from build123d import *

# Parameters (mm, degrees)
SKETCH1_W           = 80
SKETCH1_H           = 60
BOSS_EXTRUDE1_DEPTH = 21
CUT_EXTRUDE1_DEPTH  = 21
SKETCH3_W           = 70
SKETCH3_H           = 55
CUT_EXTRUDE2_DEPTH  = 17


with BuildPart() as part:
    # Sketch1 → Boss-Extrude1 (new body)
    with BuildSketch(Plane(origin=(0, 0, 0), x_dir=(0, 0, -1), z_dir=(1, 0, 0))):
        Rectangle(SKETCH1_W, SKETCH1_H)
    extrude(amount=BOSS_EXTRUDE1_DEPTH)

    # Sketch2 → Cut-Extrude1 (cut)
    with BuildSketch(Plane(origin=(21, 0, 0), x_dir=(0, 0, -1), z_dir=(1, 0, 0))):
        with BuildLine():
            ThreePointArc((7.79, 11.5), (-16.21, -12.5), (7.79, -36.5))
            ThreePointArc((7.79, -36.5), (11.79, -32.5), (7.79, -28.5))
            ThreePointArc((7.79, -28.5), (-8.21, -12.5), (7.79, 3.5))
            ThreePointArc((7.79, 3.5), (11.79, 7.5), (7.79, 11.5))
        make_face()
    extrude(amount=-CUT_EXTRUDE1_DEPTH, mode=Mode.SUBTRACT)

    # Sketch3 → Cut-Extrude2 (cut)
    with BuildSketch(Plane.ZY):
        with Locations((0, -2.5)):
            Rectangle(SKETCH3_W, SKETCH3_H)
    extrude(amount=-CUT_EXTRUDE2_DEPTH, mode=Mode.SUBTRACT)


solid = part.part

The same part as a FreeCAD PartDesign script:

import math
import FreeCAD as App
import Part
import Sketcher
from FreeCAD import Vector

doc = App.newDocument("Part")
body = doc.addObject("PartDesign::Body", "Body")

# Sketch on YZ plane
sketch1 = doc.addObject("Sketcher::SketchObject", "Sketch")
body.addObject(sketch1)
sketch1.AttachmentSupport = (doc.YZ_Plane, [""])
sketch1.MapMode = "FlatFace"
sketch1.addGeometry([
    Part.LineSegment(Vector(30, 40, 0), Vector(-30, 40, 0)),
    Part.LineSegment(Vector(-30, 40, 0), Vector(-30, -40, 0)),
    Part.LineSegment(Vector(-30, -40, 0), Vector(30, -40, 0)),
    Part.LineSegment(Vector(30, -40, 0), Vector(30, 40, 0)),
], False)
sketch1.addConstraint([
    Sketcher.Constraint("Coincident", 0, 2, 1, 1),
    Sketcher.Constraint("Coincident", 1, 2, 2, 1),
    Sketcher.Constraint("Coincident", 2, 2, 3, 1),
    Sketcher.Constraint("Coincident", 3, 2, 0, 1),
    Sketcher.Constraint("Horizontal", 0),
    Sketcher.Constraint("Vertical", 1),
    Sketcher.Constraint("Horizontal", 2),
    Sketcher.Constraint("Vertical", 3),
    Sketcher.Constraint("Symmetric", 0, 2, 2, 2, -1, 1),
    Sketcher.Constraint("DistanceX", 0, 2, 0, 1, 60.0),
    Sketcher.Constraint("DistanceY", 1, 2, 1, 1, 80.0),
])
pad1 = doc.addObject("PartDesign::Pad", "Pad")
body.addObject(pad1)
pad1.Profile = sketch1
pad1.Length = 21

# Sketch on YZ plane
sketch2 = doc.addObject("Sketcher::SketchObject", "Sketch001")
body.addObject(sketch2)
sketch2.AttachmentSupport = (doc.YZ_Plane, [""])
sketch2.MapMode = "FlatFace"
sketch2.AttachmentOffset = App.Placement(Vector(0, 0, 21), App.Rotation())
sketch2.addGeometry([
    Part.ArcOfCircle(Part.Circle(Vector(-12.5, -7.8, 0), Vector(0, 0, 1), 24), math.radians(0), math.radians(180)),
    Part.ArcOfCircle(Part.Circle(Vector(-32.5, -7.8, 0), Vector(0, 0, 1), 4), math.radians(180), math.radians(360)),
    Part.ArcOfCircle(Part.Circle(Vector(-12.5, -7.8, 0), Vector(0, 0, 1), 16), math.radians(0), math.radians(180)),
    Part.ArcOfCircle(Part.Circle(Vector(7.5, -7.8, 0), Vector(0, 0, 1), 4), math.radians(180), math.radians(360)),
], False)
sketch2.addConstraint([
    Sketcher.Constraint("Tangent", 0, 2, 1, 1),
    Sketcher.Constraint("Tangent", 1, 2, 2, 2),
    Sketcher.Constraint("Tangent", 2, 1, 3, 1),
    Sketcher.Constraint("Tangent", 3, 2, 0, 1),
    Sketcher.Constraint("Coincident", 2, 3, 0, 3),
    Sketcher.Constraint("Horizontal", 0, 3, 1, 3),
    Sketcher.Constraint("Horizontal", 2, 3, 3, 3),
    Sketcher.Constraint("Radius", 0, 24.0),
    Sketcher.Constraint("Radius", 1, 4.0),
    Sketcher.Constraint("DistanceX", 0, 3, -1, 1, 12.5),
    Sketcher.Constraint("DistanceY", 0, 3, -1, 1, 7.79),
])
pocket1 = doc.addObject("PartDesign::Pocket", "Pocket")
body.addObject(pocket1)
pocket1.Profile = sketch2
pocket1.Length = 21

# Sketch on YZ plane
sketch3 = doc.addObject("Sketcher::SketchObject", "Sketch002")
body.addObject(sketch3)
sketch3.AttachmentSupport = (doc.YZ_Plane, [""])
sketch3.MapMode = "FlatFace"
sketch3.addGeometry([
    Part.LineSegment(Vector(25, -35, 0), Vector(-30, -35, 0)),
    Part.LineSegment(Vector(-30, -35, 0), Vector(-30, 35, 0)),
    Part.LineSegment(Vector(-30, 35, 0), Vector(25, 35, 0)),
    Part.LineSegment(Vector(25, 35, 0), Vector(25, -35, 0)),
], False)
sketch3.addConstraint([
    Sketcher.Constraint("Coincident", 0, 2, 1, 1),
    Sketcher.Constraint("Coincident", 1, 2, 2, 1),
    Sketcher.Constraint("Coincident", 2, 2, 3, 1),
    Sketcher.Constraint("Coincident", 3, 2, 0, 1),
    Sketcher.Constraint("Horizontal", 0),
    Sketcher.Constraint("Vertical", 1),
    Sketcher.Constraint("Horizontal", 2),
    Sketcher.Constraint("Vertical", 3),
    Sketcher.Constraint("DistanceX", 0, 2, 0, 1, 55.0),
    Sketcher.Constraint("DistanceY", 1, 1, 1, 2, 70.0),
    Sketcher.Constraint("DistanceX", 0, 2, -1, 1, 30.0),
    Sketcher.Constraint("DistanceY", 0, 2, -1, 1, 35.0),
])
pocket2 = doc.addObject("PartDesign::Pocket", "Pocket001")
body.addObject(pocket2)
pocket2.Profile = sketch3
pocket2.Length = 17
pocket2.Reversed = True

doc.recompute()
